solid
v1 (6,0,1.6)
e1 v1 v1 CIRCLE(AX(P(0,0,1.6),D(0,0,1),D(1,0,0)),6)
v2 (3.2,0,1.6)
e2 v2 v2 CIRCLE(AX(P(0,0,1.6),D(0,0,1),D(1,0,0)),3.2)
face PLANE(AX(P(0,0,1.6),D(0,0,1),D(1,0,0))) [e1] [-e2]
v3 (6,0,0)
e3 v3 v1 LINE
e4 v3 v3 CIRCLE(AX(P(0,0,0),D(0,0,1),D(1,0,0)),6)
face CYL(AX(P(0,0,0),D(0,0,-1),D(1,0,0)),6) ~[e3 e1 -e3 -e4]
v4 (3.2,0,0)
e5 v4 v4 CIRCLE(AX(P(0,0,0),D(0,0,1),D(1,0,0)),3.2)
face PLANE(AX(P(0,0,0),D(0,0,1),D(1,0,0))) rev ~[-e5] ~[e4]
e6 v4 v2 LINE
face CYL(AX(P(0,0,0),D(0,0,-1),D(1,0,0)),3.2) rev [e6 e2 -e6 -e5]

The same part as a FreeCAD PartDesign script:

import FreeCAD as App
import Part
import Sketcher

doc = App.newDocument("Part")
params = doc.addObject("Spreadsheet::Sheet", "Params")
for row, (alias, value) in enumerate([
    ("sketch1_diameter", "12 mm"),
    ("sketch1_diameter2", "6.4 mm"),
    ("pad1_length", "1.6 mm"),
], start=1):
    params.set(f"A{row}", alias)
    params.set(f"B{row}", "=" + value)
    params.setAlias(f"B{row}", alias)

body = doc.addObject("PartDesign::Body", "Body")

sketch1 = body.newObject("Sketcher::SketchObject", "Sketch")
sketch1.AttachmentSupport = (doc.getObject("XY_Plane"), [""])
sketch1.MapMode = "FlatFace"
sketch1.addGeometry([
    Part.Circle(App.Vector(0, 0, 0), App.Vector(0, 0, 1), 6),
    Part.Circle(App.Vector(0, 0, 0), App.Vector(0, 0, 1), 3.2),
], False)
sketch1.addConstraint([
    Sketcher.Constraint("Coincident", 0, 3, -1, 1),
    Sketcher.Constraint("Coincident", 1, 3, -1, 1),
    Sketcher.Constraint("Diameter", 0, 12.0),
    Sketcher.Constraint("Diameter", 1, 6.4),
])
sketch1.setExpression("Constraints[2]", "Params.sketch1_diameter")
sketch1.setExpression("Constraints[3]", "Params.sketch1_diameter2")
pad1 = body.newObject("PartDesign::Pad", "Pad")
pad1.Profile = sketch1
pad1.setExpression("Length", "Params.pad1_length")

doc.recompute()
